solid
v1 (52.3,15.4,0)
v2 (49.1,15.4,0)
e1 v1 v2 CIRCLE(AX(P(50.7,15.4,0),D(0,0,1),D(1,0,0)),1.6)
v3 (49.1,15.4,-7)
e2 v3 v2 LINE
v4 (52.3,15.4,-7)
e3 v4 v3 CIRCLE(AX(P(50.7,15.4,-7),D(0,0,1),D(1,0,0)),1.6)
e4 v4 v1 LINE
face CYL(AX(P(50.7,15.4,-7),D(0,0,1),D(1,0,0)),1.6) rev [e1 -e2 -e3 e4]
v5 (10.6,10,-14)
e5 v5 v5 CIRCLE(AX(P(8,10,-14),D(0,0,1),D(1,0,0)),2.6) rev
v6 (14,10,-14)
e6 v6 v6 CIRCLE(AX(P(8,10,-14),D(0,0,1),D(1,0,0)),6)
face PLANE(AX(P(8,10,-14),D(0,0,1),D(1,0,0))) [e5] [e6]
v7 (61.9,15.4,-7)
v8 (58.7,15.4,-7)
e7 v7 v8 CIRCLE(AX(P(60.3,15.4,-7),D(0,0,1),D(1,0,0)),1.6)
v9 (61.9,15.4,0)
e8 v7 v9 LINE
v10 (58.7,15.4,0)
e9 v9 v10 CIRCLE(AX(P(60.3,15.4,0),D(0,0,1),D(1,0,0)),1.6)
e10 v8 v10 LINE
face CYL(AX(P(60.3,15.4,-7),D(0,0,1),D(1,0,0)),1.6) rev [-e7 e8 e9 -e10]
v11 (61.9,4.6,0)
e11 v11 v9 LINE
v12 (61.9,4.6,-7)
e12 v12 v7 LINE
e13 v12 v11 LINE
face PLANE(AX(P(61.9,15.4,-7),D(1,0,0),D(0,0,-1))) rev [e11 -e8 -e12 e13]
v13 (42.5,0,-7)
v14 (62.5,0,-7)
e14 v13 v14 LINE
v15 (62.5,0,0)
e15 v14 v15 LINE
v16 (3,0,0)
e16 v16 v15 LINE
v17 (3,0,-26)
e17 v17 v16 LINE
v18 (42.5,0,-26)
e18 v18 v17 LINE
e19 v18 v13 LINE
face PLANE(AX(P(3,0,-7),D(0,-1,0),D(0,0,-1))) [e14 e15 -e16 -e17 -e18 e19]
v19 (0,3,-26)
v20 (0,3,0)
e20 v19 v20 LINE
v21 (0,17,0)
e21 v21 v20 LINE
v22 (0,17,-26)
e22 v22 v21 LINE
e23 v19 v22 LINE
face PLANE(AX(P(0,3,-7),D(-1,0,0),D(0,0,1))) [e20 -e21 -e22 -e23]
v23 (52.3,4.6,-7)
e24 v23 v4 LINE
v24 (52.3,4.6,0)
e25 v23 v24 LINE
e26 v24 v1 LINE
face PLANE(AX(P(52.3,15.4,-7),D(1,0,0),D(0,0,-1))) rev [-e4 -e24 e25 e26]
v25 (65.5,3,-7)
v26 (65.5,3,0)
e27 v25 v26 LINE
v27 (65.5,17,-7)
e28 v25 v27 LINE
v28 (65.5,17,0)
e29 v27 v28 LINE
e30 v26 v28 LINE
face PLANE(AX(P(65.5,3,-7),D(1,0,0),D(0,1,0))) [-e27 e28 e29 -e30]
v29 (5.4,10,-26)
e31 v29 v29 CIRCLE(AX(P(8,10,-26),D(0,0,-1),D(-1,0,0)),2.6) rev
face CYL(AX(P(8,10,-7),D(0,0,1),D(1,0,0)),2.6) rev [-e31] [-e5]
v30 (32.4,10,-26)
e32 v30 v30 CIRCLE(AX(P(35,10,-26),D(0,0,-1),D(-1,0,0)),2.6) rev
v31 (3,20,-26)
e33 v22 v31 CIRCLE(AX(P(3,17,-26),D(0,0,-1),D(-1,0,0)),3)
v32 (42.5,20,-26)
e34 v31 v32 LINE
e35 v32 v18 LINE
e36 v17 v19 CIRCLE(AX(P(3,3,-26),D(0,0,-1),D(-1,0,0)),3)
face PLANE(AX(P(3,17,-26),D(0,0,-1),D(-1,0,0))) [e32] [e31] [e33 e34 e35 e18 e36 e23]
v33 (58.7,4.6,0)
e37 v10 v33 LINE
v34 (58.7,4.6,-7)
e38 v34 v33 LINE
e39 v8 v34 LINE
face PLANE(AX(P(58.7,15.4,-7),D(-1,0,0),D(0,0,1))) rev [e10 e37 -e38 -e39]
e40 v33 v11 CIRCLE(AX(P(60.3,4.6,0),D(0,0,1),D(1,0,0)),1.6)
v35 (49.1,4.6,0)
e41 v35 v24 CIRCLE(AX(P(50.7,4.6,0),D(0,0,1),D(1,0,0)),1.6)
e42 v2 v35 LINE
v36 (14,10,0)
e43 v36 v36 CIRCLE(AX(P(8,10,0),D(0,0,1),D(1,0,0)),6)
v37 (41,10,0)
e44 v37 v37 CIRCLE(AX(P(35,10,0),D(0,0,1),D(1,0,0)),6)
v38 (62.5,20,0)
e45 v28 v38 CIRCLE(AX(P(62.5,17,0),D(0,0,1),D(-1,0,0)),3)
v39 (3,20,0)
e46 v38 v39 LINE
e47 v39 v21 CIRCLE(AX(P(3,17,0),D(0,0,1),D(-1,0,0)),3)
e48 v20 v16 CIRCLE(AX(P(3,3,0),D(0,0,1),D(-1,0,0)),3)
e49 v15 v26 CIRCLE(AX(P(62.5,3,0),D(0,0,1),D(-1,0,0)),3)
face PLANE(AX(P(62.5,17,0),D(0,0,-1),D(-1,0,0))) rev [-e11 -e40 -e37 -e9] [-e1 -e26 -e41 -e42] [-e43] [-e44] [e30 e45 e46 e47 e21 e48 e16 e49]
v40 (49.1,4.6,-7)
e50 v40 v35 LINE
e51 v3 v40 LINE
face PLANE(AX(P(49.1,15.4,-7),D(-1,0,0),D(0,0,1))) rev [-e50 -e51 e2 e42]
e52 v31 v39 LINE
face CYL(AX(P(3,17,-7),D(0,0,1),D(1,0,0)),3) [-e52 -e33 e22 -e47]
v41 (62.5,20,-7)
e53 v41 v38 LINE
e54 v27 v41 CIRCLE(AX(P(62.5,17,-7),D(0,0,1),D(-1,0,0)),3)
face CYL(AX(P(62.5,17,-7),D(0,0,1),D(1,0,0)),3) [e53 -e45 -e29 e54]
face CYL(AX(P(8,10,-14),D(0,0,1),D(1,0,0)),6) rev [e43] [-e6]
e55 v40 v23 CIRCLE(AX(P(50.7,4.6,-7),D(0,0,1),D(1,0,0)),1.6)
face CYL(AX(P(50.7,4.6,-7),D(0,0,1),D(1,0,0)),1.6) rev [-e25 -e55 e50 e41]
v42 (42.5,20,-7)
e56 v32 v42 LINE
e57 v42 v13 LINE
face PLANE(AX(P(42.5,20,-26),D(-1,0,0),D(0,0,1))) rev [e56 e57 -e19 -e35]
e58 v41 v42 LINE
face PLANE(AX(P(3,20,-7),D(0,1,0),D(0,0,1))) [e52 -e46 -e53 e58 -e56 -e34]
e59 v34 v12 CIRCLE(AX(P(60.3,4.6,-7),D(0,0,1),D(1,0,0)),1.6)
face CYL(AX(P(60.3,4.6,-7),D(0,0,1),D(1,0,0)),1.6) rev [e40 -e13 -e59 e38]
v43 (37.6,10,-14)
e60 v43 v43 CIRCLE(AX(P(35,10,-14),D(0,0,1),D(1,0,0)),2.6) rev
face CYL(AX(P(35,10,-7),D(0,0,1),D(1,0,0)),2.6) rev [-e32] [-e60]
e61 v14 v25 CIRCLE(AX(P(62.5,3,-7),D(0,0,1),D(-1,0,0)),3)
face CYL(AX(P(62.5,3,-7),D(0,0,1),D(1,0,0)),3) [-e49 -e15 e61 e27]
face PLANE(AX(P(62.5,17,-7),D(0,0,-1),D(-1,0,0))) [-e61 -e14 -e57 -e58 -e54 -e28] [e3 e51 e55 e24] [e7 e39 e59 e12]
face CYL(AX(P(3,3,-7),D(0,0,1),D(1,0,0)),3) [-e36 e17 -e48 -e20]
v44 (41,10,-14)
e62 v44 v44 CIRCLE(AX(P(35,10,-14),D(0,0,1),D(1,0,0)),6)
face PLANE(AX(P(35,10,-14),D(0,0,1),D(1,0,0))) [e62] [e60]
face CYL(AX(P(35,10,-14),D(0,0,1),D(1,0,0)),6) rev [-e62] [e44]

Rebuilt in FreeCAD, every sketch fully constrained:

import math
import FreeCAD as App
import Part
import Sketcher

V = App.Vector

doc = App.newDocument("Part")
params = doc.addObject("Spreadsheet::Sheet", "Params")
for row, (alias, value) in enumerate([
    ("sketch1_radius", "3 mm"),
    ("sketch1_diameter", "5.2 mm"),
    ("sketch1_radius2", "1.6 mm"),
    ("sketch1_height", "14 mm"),
    ("sketch1_width", "59.5 mm"),
    ("pad1_length", "7 mm"),
    ("sketch2_radius", "3 mm"),
    ("sketch2_height", "20 mm"),
    ("sketch2_width", "39.5 mm"),
    ("pad2_length", "19 mm"),
    ("sketch3_diameter", "5.2 mm"),
    ("pocket1_length", "19 mm"),
    ("sketch4_diameter", "12 mm"),
    ("pocket2_length", "14 mm"),
], start=1):
    params.set(f"A{row}", alias)
    params.set(f"B{row}", "=" + value)
    params.setAlias(f"B{row}", alias)

body = doc.addObject("PartDesign::Body", "Body")

# Sketch on XY plane
sketch1 = doc.addObject("Sketcher::SketchObject", "Sketch")
body.addObject(sketch1)
sketch1.AttachmentSupport = (doc.XY_Plane, [""])
sketch1.MapMode = "FlatFace"
sketch1.addGeometry([
    Part.LineSegment(V(3, 0, 0), V(62.5, 0, 0)),  # 0
    Part.ArcOfCircle(Part.Circle(V(62.5, 3, 0), V(0, 0, 1), 3), math.radians(-90), math.radians(0)),  # 1
    Part.LineSegment(V(65.5, 3, 0), V(65.5, 17, 0)),  # 2
    Part.ArcOfCircle(Part.Circle(V(62.5, 17, 0), V(0, 0, 1), 3), math.radians(0), math.radians(90)),  # 3
    Part.LineSegment(V(62.5, 20, 0), V(3, 20, 0)),  # 4
    Part.ArcOfCircle(Part.Circle(V(3, 17, 0), V(0, 0, 1), 3), math.radians(90), math.radians(180)),  # 5
    Part.LineSegment(V(0, 17, 0), V(0, 3, 0)),  # 6
    Part.ArcOfCircle(Part.Circle(V(3, 3, 0), V(0, 0, 1), 3), math.radians(180), math.radians(270)),  # 7
    Part.Circle(V(8, 10, 0), V(0, 0, 1), 2.6),  # 8
    Part.Circle(V(35, 10, 0), V(0, 0, 1), 2.6),  # 9
    Part.LineSegment(V(49.1, 4.6, 0), V(49.1, 15.4, 0)),  # 10
    Part.ArcOfCircle(Part.Circle(V(50.7, 15.4, 0), V(0, 0, 1), 1.6), math.radians(0), math.radians(180)),  # 11
    Part.LineSegment(V(52.3, 15.4, 0), V(52.3, 4.6, 0)),  # 12
    Part.ArcOfCircle(Part.Circle(V(50.7, 4.6, 0), V(0, 0, 1), 1.6), math.radians(180), math.radians(360)),  # 13
    Part.LineSegment(V(58.7, 4.6, 0), V(58.7, 15.4, 0)),  # 14
    Part.ArcOfCircle(Part.Circle(V(60.3, 15.4, 0), V(0, 0, 1), 1.6), math.radians(0), math.radians(180)),  # 15
    Part.LineSegment(V(61.9, 15.4, 0), V(61.9, 4.6, 0)),  # 16
    Part.ArcOfCircle(Part.Circle(V(60.3, 4.6, 0), V(0, 0, 1), 1.6), math.radians(180), math.radians(360)),  # 17
], False)
sketch1.addConstraint([
    Sketcher.Constraint("Tangent", 0, 2, 1, 1),
    Sketcher.Constraint("Tangent", 1, 2, 2, 1),
    Sketcher.Constraint("Tangent", 2, 2, 3, 1),
    Sketcher.Constraint("Tangent", 3, 2, 4, 1),
    Sketcher.Constraint("Tangent", 4, 2, 5, 1),
    Sketcher.Constraint("Tangent", 5, 2, 6, 1),
    Sketcher.Constraint("Tangent", 6, 2, 7, 1),
    Sketcher.Constraint("Tangent", 7, 2, 0, 1),
    Sketcher.Constraint("Tangent", 10, 2, 11, 2),
    Sketcher.Constraint("Tangent", 11, 1, 12, 1),
    Sketcher.Constraint("Tangent", 12, 2, 13, 2),
    Sketcher.Constraint("Tangent", 13, 1, 10, 1),
    Sketcher.Constraint("Tangent", 14, 2, 15, 2),
    Sketcher.Constraint("Tangent", 15, 1, 16, 1),
    Sketcher.Constraint("Tangent", 16, 2, 17, 2),
    Sketcher.Constraint("Tangent", 17, 1, 14, 1),
    Sketcher.Constraint("Horizontal", 0),
    Sketcher.Constraint("Vertical", 2),
    Sketcher.Constraint("Horizontal", 4),
    Sketcher.Constraint("Vertical", 6),
    Sketcher.Constraint("Vertical", 10),
    Sketcher.Constraint("Vertical", 12),
    Sketcher.Constraint("Vertical", 14),
    Sketcher.Constraint("Vertical", 16),
    Sketcher.Constraint("Equal", 1, 3),
    Sketcher.Constraint("Equal", 3, 5),
    Sketcher.Constraint("Equal", 5, 7),
    Sketcher.Constraint("Equal", 8, 9),
    Sketcher.Constraint("Equal", 13, 15),
    Sketcher.Constraint("PointOnObject", 0, 2, -1),
    Sketcher.Constraint("PointOnObject", 5, 2, -2),
    Sketcher.Constraint("Horizontal", 8, 3, 9, 3),
    Sketcher.Constraint("Horizontal", 11, 3, 15, 3),
    Sketcher.Constraint("Horizontal", 13, 3, 17, 3),
    Sketcher.Constraint("Radius", 1, 3.0),
    Sketcher.Constraint("Diameter", 8, 5.2),
    Sketcher.Constraint("Radius", 11, 1.6),
    Sketcher.Constraint("DistanceY", 2, 1, 2, 2, 14.0),
    Sketcher.Constraint("DistanceX", 0, 1, 0, 2, 59.5),
    Sketcher.Constraint("DistanceY", 10, 1, 10, 2, 10.8),
    Sketcher.Constraint("DistanceX", -1, 1, 8, 3, 8.0),
    Sketcher.Constraint("DistanceY", -1, 1, 8, 3, 10.0),
    Sketcher.Constraint("DistanceX", -1, 1, 9, 3, 35.0),
    Sketcher.Constraint("DistanceX", 11, 1, 15, 3, 8.0),
    Sketcher.Constraint("DistanceX", -1, 1, 11, 3, 50.7),
    Sketcher.Constraint("DistanceY", -1, 1, 11, 3, 15.4),
])
sketch1.setExpression("Constraints[34]", "Params.sketch1_radius")
sketch1.setExpression("Constraints[35]", "Params.sketch1_diameter")
sketch1.setExpression("Constraints[36]", "Params.sketch1_radius2")
sketch1.setExpression("Constraints[37]", "Params.sketch1_height")
sketch1.setExpression("Constraints[38]", "Params.sketch1_width")
pad1 = doc.addObject("PartDesign::Pad", "Pad")
body.addObject(pad1)
pad1.Profile = sketch1
pad1.setExpression("Length", "Params.pad1_length")
pad1.Reversed = True

# Sketch on XY plane
sketch2 = doc.addObject("Sketcher::SketchObject", "Sketch001")
body.addObject(sketch2)
sketch2.AttachmentSupport = (doc.XY_Plane, [""])
sketch2.MapMode = "FlatFace"
sketch2.AttachmentOffset = App.Placement(V(0, 0, -7), App.Rotation())
sketch2.addGeometry([
    Part.LineSegment(V(42.5, 20, 0), V(42.5, 0, 0)),  # 0
    Part.LineSegment(V(42.5, 0, 0), V(3, 0, 0)),  # 1
    Part.ArcOfCircle(Part.Circle(V(3, 3, 0), V(0, 0, 1), 3), math.radians(180), math.radians(270)),  # 2
    Part.LineSegment(V(0, 3, 0), V(0, 17, 0)),  # 3
    Part.ArcOfCircle(Part.Circle(V(3, 17, 0), V(0, 0, 1), 3), math.radians(90), math.radians(180)),  # 4
    Part.LineSegment(V(3, 20, 0), V(42.5, 20, 0)),  # 5
], False)
sketch2.addConstraint([
    Sketcher.Constraint("Coincident", 0, 2, 1, 1),
    Sketcher.Constraint("Tangent", 1, 2, 2, 2),
    Sketcher.Constraint("Tangent", 2, 1, 3, 1),
    Sketcher.Constraint("Tangent", 3, 2, 4, 2),
    Sketcher.Constraint("Tangent", 4, 1, 5, 1),
    Sketcher.Constraint("Coincident", 5, 2, 0, 1),
    Sketcher.Constraint("Vertical", 0),
    Sketcher.Constraint("Horizontal", 1),
    Sketcher.Constraint("Vertical", 3),
    Sketcher.Constraint("Horizontal", 5),
    Sketcher.Constraint("Equal", 2, 4),
    Sketcher.Constraint("PointOnObject", 0, 2, -1),
    Sketcher.Constraint("PointOnObject", 2, 1, -2),
    Sketcher.Constraint("Radius", 2, 3.0),
    Sketcher.Constraint("DistanceY", 0, 2, 0, 1, 20.0),
    Sketcher.Constraint("DistanceX", 1, 2, 1, 1, 39.5),
])
sketch2.setExpression("Constraints[13]", "Params.sketch2_radius")
sketch2.setExpression("Constraints[14]", "Params.sketch2_height")
sketch2.setExpression("Constraints[15]", "Params.sketch2_width")
pad2 = doc.addObject("PartDesign::Pad", "Pad001")
body.addObject(pad2)
pad2.Profile = sketch2
pad2.setExpression("Length", "Params.pad2_length")
pad2.Reversed = True

# Sketch on XY plane
sketch3 = doc.addObject("Sketcher::SketchObject", "Sketch002")
body.addObject(sketch3)
sketch3.AttachmentSupport = (doc.XY_Plane, [""])
sketch3.MapMode = "FlatFace"
sketch3.AttachmentOffset = App.Placement(V(0, 0, -7), App.Rotation())
sketch3.addGeometry([
    Part.Circle(V(8, 10, 0), V(0, 0, 1), 2.6),
    Part.Circle(V(35, 10, 0), V(0, 0, 1), 2.6),
], False)
sketch3.addConstraint([
    Sketcher.Constraint("Equal", 0, 1),
    Sketcher.Constraint("Horizontal", 0, 3, 1, 3),
    Sketcher.Constraint("Diameter", 0, 5.2),
    Sketcher.Constraint("DistanceX", -1, 1, 0, 3, 8.0),
    Sketcher.Constraint("DistanceY", -1, 1, 0, 3, 10.0),
    Sketcher.Constraint("DistanceX", -1, 1, 1, 3, 35.0),
])
sketch3.setExpression("Constraints[2]", "Params.sketch3_diameter")
pocket1 = doc.addObject("PartDesign::Pocket", "Pocket")
body.addObject(pocket1)
pocket1.Profile = sketch3
pocket1.setExpression("Length", "Params.pocket1_length")

# Sketch on XY plane
sketch4 = doc.addObject("Sketcher::SketchObject", "Sketch003")
body.addObject(sketch4)
sketch4.AttachmentSupport = (doc.XY_Plane, [""])
sketch4.MapMode = "FlatFace"
sketch4.addGeometry([
    Part.Circle(V(8, 10, 0), V(0, 0, 1), 6),
    Part.Circle(V(35, 10, 0), V(0, 0, 1), 6),
], False)
sketch4.addConstraint([
    Sketcher.Constraint("Equal", 0, 1),
    Sketcher.Constraint("Horizontal", 0, 3, 1, 3),
    Sketcher.Constraint("Diameter", 0, 12.0),
    Sketcher.Constraint("DistanceX", -1, 1, 0, 3, 8.0),
    Sketcher.Constraint("DistanceY", -1, 1, 0, 3, 10.0),
    Sketcher.Constraint("DistanceX", -1, 1, 1, 3, 35.0),
])
sketch4.setExpression("Constraints[2]", "Params.sketch4_diameter")
pocket2 = doc.addObject("PartDesign::Pocket", "Pocket001")
body.addObject(pocket2)
pocket2.Profile = sketch4
pocket2.setExpression("Length", "Params.pocket2_length")

doc.recompute()
